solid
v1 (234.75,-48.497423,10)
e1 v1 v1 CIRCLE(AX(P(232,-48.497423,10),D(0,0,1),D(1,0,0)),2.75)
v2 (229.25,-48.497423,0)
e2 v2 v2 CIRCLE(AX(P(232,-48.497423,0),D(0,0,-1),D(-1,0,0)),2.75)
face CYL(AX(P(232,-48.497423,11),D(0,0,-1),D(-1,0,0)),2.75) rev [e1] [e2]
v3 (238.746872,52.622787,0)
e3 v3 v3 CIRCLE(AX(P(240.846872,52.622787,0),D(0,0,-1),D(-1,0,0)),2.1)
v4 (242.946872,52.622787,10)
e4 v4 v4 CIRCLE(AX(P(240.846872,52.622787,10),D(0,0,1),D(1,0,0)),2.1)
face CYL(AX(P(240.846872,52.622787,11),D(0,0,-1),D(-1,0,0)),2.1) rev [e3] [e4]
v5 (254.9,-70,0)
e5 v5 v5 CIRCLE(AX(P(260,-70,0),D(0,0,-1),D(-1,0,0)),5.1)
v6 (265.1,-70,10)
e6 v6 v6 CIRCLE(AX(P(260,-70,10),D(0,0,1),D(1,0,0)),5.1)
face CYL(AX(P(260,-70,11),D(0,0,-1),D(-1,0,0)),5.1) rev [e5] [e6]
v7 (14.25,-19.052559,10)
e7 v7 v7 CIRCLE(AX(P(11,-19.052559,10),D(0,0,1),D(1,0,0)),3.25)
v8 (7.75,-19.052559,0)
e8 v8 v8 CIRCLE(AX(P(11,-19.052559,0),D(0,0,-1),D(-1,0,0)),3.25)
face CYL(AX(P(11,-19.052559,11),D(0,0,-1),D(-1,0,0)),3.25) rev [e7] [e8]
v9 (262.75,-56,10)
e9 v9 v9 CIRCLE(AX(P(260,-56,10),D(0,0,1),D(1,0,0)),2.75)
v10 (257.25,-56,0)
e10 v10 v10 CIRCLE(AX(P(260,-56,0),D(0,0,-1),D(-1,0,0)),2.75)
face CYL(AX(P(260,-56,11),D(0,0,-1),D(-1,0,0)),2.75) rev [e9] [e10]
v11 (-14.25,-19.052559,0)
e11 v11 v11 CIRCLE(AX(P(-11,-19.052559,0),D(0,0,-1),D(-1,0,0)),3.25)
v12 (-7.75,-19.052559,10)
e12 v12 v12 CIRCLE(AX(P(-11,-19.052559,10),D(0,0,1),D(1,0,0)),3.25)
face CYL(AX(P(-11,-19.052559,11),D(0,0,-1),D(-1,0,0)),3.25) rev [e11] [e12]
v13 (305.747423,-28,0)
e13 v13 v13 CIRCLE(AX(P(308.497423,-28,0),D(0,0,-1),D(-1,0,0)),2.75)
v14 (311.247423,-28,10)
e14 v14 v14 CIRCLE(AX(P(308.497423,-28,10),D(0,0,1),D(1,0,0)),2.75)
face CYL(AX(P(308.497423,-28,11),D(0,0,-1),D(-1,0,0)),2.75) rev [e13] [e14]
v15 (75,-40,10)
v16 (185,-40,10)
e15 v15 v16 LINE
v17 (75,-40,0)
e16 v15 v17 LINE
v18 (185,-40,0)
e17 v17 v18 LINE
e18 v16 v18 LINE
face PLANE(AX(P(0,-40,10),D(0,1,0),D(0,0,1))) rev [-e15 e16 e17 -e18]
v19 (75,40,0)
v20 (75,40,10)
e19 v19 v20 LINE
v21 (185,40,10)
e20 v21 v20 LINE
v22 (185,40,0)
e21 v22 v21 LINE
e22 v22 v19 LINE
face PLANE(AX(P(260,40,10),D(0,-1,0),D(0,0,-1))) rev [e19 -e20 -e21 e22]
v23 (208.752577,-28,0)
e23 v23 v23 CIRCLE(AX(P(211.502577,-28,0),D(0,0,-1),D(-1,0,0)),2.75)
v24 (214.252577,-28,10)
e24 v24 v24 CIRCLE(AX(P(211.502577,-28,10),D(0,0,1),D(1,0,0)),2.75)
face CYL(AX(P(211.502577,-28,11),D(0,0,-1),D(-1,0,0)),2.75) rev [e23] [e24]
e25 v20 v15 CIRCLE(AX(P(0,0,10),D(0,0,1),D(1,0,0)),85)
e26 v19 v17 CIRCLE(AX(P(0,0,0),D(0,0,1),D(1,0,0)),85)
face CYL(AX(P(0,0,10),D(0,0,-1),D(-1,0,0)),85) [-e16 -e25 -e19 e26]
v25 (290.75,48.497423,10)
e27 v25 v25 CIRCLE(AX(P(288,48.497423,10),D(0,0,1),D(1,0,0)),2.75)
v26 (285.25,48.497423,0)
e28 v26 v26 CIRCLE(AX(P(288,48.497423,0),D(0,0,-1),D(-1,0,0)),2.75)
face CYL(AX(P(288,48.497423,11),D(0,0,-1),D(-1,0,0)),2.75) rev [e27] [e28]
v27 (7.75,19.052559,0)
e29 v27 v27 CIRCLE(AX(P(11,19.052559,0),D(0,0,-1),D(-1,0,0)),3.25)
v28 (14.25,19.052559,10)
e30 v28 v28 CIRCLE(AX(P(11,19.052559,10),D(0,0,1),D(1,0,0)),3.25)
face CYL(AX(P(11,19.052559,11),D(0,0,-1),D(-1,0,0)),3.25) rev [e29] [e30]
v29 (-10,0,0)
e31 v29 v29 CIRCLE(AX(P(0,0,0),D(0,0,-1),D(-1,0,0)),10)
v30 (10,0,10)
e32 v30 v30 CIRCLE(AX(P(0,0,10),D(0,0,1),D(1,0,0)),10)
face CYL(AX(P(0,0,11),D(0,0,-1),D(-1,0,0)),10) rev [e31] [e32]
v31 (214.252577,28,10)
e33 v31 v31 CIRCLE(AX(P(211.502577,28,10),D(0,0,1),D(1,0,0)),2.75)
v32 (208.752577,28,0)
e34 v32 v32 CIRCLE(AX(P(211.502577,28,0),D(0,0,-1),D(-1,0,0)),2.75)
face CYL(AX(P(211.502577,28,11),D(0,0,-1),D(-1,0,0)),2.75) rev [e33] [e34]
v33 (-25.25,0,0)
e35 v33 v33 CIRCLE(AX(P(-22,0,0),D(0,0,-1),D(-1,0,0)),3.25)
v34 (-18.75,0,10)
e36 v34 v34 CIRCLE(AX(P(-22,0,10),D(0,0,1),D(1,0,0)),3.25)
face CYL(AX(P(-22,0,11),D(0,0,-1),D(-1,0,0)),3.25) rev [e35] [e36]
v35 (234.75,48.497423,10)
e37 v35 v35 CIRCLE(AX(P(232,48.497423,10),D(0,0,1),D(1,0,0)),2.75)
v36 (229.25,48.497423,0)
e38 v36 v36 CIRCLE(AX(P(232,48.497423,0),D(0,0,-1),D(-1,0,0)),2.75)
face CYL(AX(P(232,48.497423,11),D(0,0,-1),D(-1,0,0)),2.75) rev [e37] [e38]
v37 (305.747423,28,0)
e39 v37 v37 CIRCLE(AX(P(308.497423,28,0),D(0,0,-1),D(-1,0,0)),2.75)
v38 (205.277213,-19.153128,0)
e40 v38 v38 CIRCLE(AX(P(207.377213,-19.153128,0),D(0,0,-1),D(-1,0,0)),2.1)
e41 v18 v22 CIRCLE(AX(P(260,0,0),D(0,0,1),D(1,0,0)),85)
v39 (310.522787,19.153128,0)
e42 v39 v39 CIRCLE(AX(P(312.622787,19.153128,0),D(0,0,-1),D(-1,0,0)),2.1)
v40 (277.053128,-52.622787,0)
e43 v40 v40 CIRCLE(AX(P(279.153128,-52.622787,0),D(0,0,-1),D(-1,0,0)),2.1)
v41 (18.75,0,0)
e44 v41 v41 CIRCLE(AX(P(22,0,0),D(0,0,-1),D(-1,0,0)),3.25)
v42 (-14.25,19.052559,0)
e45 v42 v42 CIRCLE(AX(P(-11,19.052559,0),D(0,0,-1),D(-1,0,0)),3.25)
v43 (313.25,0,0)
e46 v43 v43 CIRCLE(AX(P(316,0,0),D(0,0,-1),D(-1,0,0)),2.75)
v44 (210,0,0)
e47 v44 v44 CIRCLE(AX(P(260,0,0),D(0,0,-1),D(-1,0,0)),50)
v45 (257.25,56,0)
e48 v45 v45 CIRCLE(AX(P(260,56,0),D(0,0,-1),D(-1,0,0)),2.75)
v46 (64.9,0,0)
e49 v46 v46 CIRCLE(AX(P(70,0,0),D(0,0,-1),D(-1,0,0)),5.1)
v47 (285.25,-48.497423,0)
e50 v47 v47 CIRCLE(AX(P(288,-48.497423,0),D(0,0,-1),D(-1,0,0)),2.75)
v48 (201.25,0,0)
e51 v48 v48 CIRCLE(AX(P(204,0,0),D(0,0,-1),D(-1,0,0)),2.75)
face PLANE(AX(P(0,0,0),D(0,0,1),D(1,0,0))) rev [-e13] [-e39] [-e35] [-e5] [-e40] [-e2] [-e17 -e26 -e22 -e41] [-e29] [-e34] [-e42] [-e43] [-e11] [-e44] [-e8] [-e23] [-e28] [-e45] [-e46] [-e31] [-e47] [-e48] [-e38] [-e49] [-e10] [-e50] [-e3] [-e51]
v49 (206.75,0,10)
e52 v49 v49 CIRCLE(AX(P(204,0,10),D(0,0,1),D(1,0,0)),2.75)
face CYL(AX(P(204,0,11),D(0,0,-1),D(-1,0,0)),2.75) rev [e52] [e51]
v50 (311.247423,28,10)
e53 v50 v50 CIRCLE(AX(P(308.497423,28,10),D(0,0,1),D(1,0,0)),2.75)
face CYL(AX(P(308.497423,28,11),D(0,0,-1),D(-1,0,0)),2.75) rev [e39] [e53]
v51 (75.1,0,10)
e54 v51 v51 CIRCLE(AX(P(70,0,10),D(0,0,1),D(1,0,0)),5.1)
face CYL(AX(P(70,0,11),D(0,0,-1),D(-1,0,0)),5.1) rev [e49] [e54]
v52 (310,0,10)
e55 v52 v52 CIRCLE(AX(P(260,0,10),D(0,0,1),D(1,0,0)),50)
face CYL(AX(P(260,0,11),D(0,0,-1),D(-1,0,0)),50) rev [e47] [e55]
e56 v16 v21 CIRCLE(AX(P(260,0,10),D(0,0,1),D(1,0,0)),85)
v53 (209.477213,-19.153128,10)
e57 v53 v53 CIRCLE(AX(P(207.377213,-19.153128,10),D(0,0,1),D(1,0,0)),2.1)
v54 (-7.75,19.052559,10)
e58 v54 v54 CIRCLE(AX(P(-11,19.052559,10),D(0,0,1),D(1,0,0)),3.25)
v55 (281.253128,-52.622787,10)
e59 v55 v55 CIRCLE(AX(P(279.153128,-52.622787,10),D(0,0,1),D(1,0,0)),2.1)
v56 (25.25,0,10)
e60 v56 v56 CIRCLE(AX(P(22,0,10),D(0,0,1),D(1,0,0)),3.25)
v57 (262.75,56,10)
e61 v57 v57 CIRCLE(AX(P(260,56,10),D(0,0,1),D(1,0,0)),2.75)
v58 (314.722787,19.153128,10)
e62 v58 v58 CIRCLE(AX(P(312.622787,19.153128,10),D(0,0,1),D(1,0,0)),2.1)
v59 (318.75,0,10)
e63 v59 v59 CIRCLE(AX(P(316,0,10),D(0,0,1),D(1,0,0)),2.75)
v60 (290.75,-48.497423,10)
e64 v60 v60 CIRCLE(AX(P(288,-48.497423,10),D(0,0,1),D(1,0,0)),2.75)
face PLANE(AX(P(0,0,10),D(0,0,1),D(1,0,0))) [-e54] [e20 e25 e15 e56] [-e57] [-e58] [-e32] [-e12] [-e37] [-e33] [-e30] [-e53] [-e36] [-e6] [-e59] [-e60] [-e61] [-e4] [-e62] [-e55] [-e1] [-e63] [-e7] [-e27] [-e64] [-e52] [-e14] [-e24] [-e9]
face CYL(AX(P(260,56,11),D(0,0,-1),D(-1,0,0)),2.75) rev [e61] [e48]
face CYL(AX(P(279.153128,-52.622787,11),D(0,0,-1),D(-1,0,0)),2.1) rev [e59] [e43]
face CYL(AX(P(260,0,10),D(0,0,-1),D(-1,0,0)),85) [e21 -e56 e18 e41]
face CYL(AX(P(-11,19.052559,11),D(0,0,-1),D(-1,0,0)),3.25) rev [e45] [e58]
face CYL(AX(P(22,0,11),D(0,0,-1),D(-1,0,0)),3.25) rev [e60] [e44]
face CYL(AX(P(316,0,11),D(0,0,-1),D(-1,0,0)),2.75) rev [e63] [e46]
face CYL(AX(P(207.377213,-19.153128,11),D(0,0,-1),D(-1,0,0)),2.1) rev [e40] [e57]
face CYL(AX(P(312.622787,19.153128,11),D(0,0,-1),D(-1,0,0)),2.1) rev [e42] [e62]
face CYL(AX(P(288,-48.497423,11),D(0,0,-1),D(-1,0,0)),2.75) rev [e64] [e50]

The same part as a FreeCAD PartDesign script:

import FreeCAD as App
import Part
import Sketcher
from FreeCAD import Vector
Q = App.Units.Quantity


def add_polygon(sketch, points):
    """Adds a closed chain of lines whose ends are joined by coincident constraints."""
    first, n = sketch.GeometryCount, len(points)
    for a, b in zip(points, points[1:] + points[:1]):
        sketch.addGeometry(Part.LineSegment(App.Vector(*a, 0), App.Vector(*b, 0)), False)
    for i in range(n):
        sketch.addConstraint(Sketcher.Constraint("Coincident", first + i, 2, first + (i + 1) % n, 1))

doc = App.newDocument("Part")
body = doc.addObject("PartDesign::Body", "Body")

sketch1 = body.newObject("Sketcher::SketchObject", "Sketch")
sketch1.AttachmentSupport = (doc.getObject("XY_Plane"), [""])
sketch1.MapMode = "FlatFace"
sketch1.addGeometry(Part.Circle(Vector(0, 0, 0), Vector(0, 0, 1), 85), False)
sketch1.addConstraint(Sketcher.Constraint("Coincident", 0, 3, -1, 1))
sketch1.addConstraint(Sketcher.Constraint("Diameter", 0, Q("170 mm")))
pad1 = body.newObject("PartDesign::Pad", "Pad")
pad1.Profile = sketch1
pad1.Length = 10

sketch2 = body.newObject("Sketcher::SketchObject", "Sketch001")
sketch2.AttachmentSupport = (doc.getObject("XY_Plane"), [""])
sketch2.MapMode = "FlatFace"
add_polygon(sketch2, [(0, 40), (0, -40), (260, -40), (260, 40)])
sketch2.addConstraint(Sketcher.Constraint("Vertical", 0))
sketch2.addConstraint(Sketcher.Constraint("Horizontal", 1))
sketch2.addConstraint(Sketcher.Constraint("Vertical", 2))
sketch2.addConstraint(Sketcher.Constraint("Horizontal", 3))
sketch2.addConstraint(Sketcher.Constraint("Symmetric", 0, 2, 3, 2, -1, 1))
sketch2.addConstraint(Sketcher.Constraint("DistanceX", 1, 1, 1, 2, Q("260 mm")))
sketch2.addConstraint(Sketcher.Constraint("DistanceY", 0, 2, 0, 1, Q("80 mm")))
pad2 = body.newObject("PartDesign::Pad", "Pad001")
pad2.Profile = sketch2
pad2.Length = 10

sketch3 = body.newObject("Sketcher::SketchObject", "Sketch002")
sketch3.AttachmentSupport = (doc.getObject("XY_Plane"), [""])
sketch3.MapMode = "FlatFace"
sketch3.addGeometry(Part.Circle(Vector(260, 0, 0), Vector(0, 0, 1), 85), False)
sketch3.addConstraint(Sketcher.Constraint("PointOnObject", 0, 3, -1))
sketch3.addConstraint(Sketcher.Constraint("Diameter", 0, Q("170 mm")))
sketch3.addConstraint(Sketcher.Constraint("DistanceX", -1, 1, 0, 3, Q("260 mm")))
pad3 = body.newObject("PartDesign::Pad", "Pad002")
pad3.Profile = sketch3
pad3.Length = 10

sketch4 = body.newObject("Sketcher::SketchObject", "Sketch003")
sketch4.AttachmentSupport = (doc.getObject("XY_Plane"), [""])
sketch4.MapMode = "FlatFace"
sketch4.addGeometry(Part.Circle(Vector(0, 0, 0), Vector(0, 0, 1), 10), False)
sketch4.addGeometry(Part.Circle(Vector(22, 0, 0), Vector(0, 0, 1), 3.2), False)
sketch4.addGeometry(Part.Circle(Vector(11, 19.1, 0), Vector(0, 0, 1), 3.2), False)
sketch4.addGeometry(Part.Circle(Vector(-11, 19.1, 0), Vector(0, 0, 1), 3.2), False)
sketch4.addGeometry(Part.Circle(Vector(-22, 0, 0), Vector(0, 0, 1), 3.2), False)
sketch4.addGeometry(Part.Circle(Vector(-11, -19.1, 0), Vector(0, 0, 1), 3.2), False)
sketch4.addGeometry(Part.Circle(Vector(11, -19.1, 0), Vector(0, 0, 1), 3.2), False)
sketch4.addGeometry(Part.Circle(Vector(260, 0, 0), Vector(0, 0, 1), 50), False)
sketch4.addGeometry(Part.Circle(Vector(316, 0, 0), Vector(0, 0, 1), 2.8), False)
sketch4.addGeometry(Part.Circle(Vector(308.5, 28, 0), Vector(0, 0, 1), 2.8), False)
sketch4.addGeometry(Part.Circle(Vector(288, 48.5, 0), Vector(0, 0, 1), 2.8), False)
sketch4.addGeometry(Part.Circle(Vector(260, 56, 0), Vector(0, 0, 1), 2.8), False)
sketch4.addGeometry(Part.Circle(Vector(232, 48.5, 0), Vector(0, 0, 1), 2.8), False)
sketch4.addGeometry(Part.Circle(Vector(211.5, 28, 0), Vector(0, 0, 1), 2.8), False)
sketch4.addGeometry(Part.Circle(Vector(204, 0, 0), Vector(0, 0, 1), 2.8), False)
sketch4.addGeometry(Part.Circle(Vector(211.5, -28, 0), Vector(0, 0, 1), 2.8), False)
sketch4.addGeometry(Part.Circle(Vector(232, -48.5, 0), Vector(0, 0, 1), 2.8), False)
sketch4.addGeometry(Part.Circle(Vector(260, -56, 0), Vector(0, 0, 1), 2.8), False)
sketch4.addGeometry(Part.Circle(Vector(288, -48.5, 0), Vector(0, 0, 1), 2.8), False)
sketch4.addGeometry(Part.Circle(Vector(308.5, -28, 0), Vector(0, 0, 1), 2.8), False)
sketch4.addGeometry(Part.Circle(Vector(312.6, 19.2, 0), Vector(0, 0, 1), 2.1), False)
sketch4.addGeometry(Part.Circle(Vector(240.8, 52.6, 0), Vector(0, 0, 1), 2.1), False)
sketch4.addGeometry(Part.Circle(Vector(207.4, -19.2, 0), Vector(0, 0, 1), 2.1), False)
sketch4.addGeometry(Part.Circle(Vector(279.2, -52.6, 0), Vector(0, 0, 1), 2.1), False)
sketch4.addGeometry(Part.Circle(Vector(70, 0, 0), Vector(0, 0, 1), 5.1), False)
sketch4.addGeometry(Part.Circle(Vector(260, -70, 0), Vector(0, 0, 1), 5.1), False)
sketch4.addConstraint(Sketcher.Constraint("Coincident", 0, 3, -1, 1))
sketch4.addConstraint(Sketcher.Constraint("Equal", 1, 2))
sketch4.addConstraint(Sketcher.Constraint("Equal", 2, 3))
sketch4.addConstraint(Sketcher.Constraint("Equal", 3, 4))
sketch4.addConstraint(Sketcher.Constraint("Equal", 4, 5))
sketch4.addConstraint(Sketcher.Constraint("Equal", 5, 6))
sketch4.addConstraint(Sketcher.Constraint("Equal", 8, 9))
sketch4.addConstraint(Sketcher.Constraint("Equal", 9, 10))
sketch4.addConstraint(Sketcher.Constraint("Equal", 10, 11))
sketch4.addConstraint(Sketcher.Constraint("Equal", 11, 12))
sketch4.addConstraint(Sketcher.Constraint("Equal", 12, 13))
sketch4.addConstraint(Sketcher.Constraint("Equal", 13, 14))
sketch4.addConstraint(Sketcher.Constraint("Equal", 14, 15))
sketch4.addConstraint(Sketcher.Constraint("Equal", 15, 16))
sketch4.addConstraint(Sketcher.Constraint("Equal", 16, 17))
sketch4.addConstraint(Sketcher.Constraint("Equal", 17, 18))
sketch4.addConstraint(Sketcher.Constraint("Equal", 18, 19))
sketch4.addConstraint(Sketcher.Constraint("Equal", 20, 21))
sketch4.addConstraint(Sketcher.Constraint("Equal", 21, 22))
sketch4.addConstraint(Sketcher.Constraint("Equal", 22, 23))
sketch4.addConstraint(Sketcher.Constraint("Equal", 24, 25))
sketch4.addConstraint(Sketcher.Constraint("Symmetric", 1, 3, 4, 3, -1, 1))
sketch4.addConstraint(Sketcher.Constraint("Symmetric", 2, 3, 5, 3, -1, 1))
sketch4.addConstraint(Sketcher.Constraint("Symmetric", 3, 3, 6, 3, -1, 1))
sketch4.addConstraint(Sketcher.Constraint("Symmetric", 2, 3, 3, 3, -2))
sketch4.addConstraint(Sketcher.Constraint("Symmetric", 13, 3, 15, 3, -1))
sketch4.addConstraint(Sketcher.Constraint("Symmetric", 12, 3, 16, 3, -1))
sketch4.addConstraint(Sketcher.Constraint("Symmetric", 11, 3, 17, 3, -1))
sketch4.addConstraint(Sketcher.Constraint("Symmetric", 10, 3, 18, 3, -1))
sketch4.addConstraint(Sketcher.Constraint("Symmetric", 9, 3, 19, 3, -1))
sketch4.addConstraint(Sketcher.Constraint("PointOnObject", 1, 3, -1))
sketch4.addConstraint(Sketcher.Constraint("PointOnObject", 7, 3, -1))
sketch4.addConstraint(Sketcher.Constraint("PointOnObject", 8, 3, -1))
sketch4.addConstraint(Sketcher.Constraint("PointOnObject", 14, 3, -1))
sketch4.addConstraint(Sketcher.Constraint("PointOnObject", 24, 3, -1))
sketch4.addConstraint(Sketcher.Constraint("Horizontal", 10, 3, 12, 3))
sketch4.addConstraint(Sketcher.Constraint("Horizontal", 9, 3, 13, 3))
sketch4.addConstraint(Sketcher.Constraint("Vertical", 7, 3, 11, 3))
sketch4.addConstraint(Sketcher.Constraint("Vertical", 17, 3, 25, 3))
sketch4.addConstraint(Sketcher.Constraint("Diameter", 0, Q("20 mm")))
sketch4.addConstraint(Sketcher.Constraint("Diameter", 7, Q("100 mm")))
sketch4.addConstraint(Sketcher.Constraint("Diameter", 1, Q("6.5 mm")))
sketch4.addConstraint(Sketcher.Constraint("Diameter", 8, Q("5.5 mm")))
sketch4.addConstraint(Sketcher.Constraint("Diameter", 20, Q("4.2 mm")))
sketch4.addConstraint(Sketcher.Constraint("Diameter", 24, Q("10.2 mm")))
sketch4.addConstraint(Sketcher.Constraint("DistanceX", -1, 1, 1, 3, Q("22 mm")))
sketch4.addConstraint(Sketcher.Constraint("DistanceX", -1, 1, 2, 3, Q("11 mm")))
sketch4.addConstraint(Sketcher.Constraint("DistanceX", -1, 1, 7, 3, Q("260 mm")))
sketch4.addConstraint(Sketcher.Constraint("DistanceX", -1, 1, 8, 3, Q("316 mm")))
sketch4.addConstraint(Sketcher.Constraint("DistanceY", -1, 1, 9, 3, Q("28 mm")))
sketch4.addConstraint(Sketcher.Constraint("DistanceX", -1, 1, 10, 3, Q("288 mm")))
sketch4.addConstraint(Sketcher.Constraint("DistanceY", -1, 1, 11, 3, Q("56 mm")))
sketch4.addConstraint(Sketcher.Constraint("DistanceX", -1, 1, 12, 3, Q("232 mm")))
sketch4.addConstraint(Sketcher.Constraint("DistanceX", -1, 1, 14, 3, Q("204 mm")))
sketch4.addConstraint(Sketcher.Constraint("DistanceX", -1, 1, 24, 3, Q("70 mm")))
sketch4.addConstraint(Sketcher.Constraint("DistanceY", 25, 3, -1, 1, Q("70 mm")))
sketch4.addConstraint(Sketcher.Constraint("DistanceY", -1, 1, 2, 3, Q("19.052559 mm")))
sketch4.addConstraint(Sketcher.Constraint("DistanceY", -1, 1, 20, 3, Q("19.153128 mm")))
sketch4.addConstraint(Sketcher.Constraint("DistanceX", -1, 1, 21, 3, Q("240.846872 mm")))
sketch4.addConstraint(Sketcher.Constraint("DistanceY", 22, 3, -1, 1, Q("19.153128 mm")))
sketch4.addConstraint(Sketcher.Constraint("DistanceX", -1, 1, 23, 3, Q("279.153128 mm")))
sketch4.addConstraint(Sketcher.Constraint("DistanceX", -1, 1, 9, 3, Q("308.497423 mm")))
sketch4.addConstraint(Sketcher.Constraint("DistanceY", -1, 1, 10, 3, Q("48.497423 mm")))
sketch4.addConstraint(Sketcher.Constraint("DistanceX", -1, 1, 13, 3, Q("211.502577 mm")))
sketch4.addConstraint(Sketcher.Constraint("DistanceX", -1, 1, 20, 3, Q("312.622787 mm")))
sketch4.addConstraint(Sketcher.Constraint("DistanceY", -1, 1, 21, 3, Q("52.622787 mm")))
sketch4.addConstraint(Sketcher.Constraint("DistanceX", -1, 1, 22, 3, Q("207.377213 mm")))
sketch4.addConstraint(Sketcher.Constraint("DistanceY", 23, 3, -1, 1, Q("52.622787 mm")))
pocket1 = body.newObject("PartDesign::Pocket", "Pocket")
pocket1.Profile = sketch4
pocket1.Length = 11
pocket1.Reversed = True

doc.recompute()
